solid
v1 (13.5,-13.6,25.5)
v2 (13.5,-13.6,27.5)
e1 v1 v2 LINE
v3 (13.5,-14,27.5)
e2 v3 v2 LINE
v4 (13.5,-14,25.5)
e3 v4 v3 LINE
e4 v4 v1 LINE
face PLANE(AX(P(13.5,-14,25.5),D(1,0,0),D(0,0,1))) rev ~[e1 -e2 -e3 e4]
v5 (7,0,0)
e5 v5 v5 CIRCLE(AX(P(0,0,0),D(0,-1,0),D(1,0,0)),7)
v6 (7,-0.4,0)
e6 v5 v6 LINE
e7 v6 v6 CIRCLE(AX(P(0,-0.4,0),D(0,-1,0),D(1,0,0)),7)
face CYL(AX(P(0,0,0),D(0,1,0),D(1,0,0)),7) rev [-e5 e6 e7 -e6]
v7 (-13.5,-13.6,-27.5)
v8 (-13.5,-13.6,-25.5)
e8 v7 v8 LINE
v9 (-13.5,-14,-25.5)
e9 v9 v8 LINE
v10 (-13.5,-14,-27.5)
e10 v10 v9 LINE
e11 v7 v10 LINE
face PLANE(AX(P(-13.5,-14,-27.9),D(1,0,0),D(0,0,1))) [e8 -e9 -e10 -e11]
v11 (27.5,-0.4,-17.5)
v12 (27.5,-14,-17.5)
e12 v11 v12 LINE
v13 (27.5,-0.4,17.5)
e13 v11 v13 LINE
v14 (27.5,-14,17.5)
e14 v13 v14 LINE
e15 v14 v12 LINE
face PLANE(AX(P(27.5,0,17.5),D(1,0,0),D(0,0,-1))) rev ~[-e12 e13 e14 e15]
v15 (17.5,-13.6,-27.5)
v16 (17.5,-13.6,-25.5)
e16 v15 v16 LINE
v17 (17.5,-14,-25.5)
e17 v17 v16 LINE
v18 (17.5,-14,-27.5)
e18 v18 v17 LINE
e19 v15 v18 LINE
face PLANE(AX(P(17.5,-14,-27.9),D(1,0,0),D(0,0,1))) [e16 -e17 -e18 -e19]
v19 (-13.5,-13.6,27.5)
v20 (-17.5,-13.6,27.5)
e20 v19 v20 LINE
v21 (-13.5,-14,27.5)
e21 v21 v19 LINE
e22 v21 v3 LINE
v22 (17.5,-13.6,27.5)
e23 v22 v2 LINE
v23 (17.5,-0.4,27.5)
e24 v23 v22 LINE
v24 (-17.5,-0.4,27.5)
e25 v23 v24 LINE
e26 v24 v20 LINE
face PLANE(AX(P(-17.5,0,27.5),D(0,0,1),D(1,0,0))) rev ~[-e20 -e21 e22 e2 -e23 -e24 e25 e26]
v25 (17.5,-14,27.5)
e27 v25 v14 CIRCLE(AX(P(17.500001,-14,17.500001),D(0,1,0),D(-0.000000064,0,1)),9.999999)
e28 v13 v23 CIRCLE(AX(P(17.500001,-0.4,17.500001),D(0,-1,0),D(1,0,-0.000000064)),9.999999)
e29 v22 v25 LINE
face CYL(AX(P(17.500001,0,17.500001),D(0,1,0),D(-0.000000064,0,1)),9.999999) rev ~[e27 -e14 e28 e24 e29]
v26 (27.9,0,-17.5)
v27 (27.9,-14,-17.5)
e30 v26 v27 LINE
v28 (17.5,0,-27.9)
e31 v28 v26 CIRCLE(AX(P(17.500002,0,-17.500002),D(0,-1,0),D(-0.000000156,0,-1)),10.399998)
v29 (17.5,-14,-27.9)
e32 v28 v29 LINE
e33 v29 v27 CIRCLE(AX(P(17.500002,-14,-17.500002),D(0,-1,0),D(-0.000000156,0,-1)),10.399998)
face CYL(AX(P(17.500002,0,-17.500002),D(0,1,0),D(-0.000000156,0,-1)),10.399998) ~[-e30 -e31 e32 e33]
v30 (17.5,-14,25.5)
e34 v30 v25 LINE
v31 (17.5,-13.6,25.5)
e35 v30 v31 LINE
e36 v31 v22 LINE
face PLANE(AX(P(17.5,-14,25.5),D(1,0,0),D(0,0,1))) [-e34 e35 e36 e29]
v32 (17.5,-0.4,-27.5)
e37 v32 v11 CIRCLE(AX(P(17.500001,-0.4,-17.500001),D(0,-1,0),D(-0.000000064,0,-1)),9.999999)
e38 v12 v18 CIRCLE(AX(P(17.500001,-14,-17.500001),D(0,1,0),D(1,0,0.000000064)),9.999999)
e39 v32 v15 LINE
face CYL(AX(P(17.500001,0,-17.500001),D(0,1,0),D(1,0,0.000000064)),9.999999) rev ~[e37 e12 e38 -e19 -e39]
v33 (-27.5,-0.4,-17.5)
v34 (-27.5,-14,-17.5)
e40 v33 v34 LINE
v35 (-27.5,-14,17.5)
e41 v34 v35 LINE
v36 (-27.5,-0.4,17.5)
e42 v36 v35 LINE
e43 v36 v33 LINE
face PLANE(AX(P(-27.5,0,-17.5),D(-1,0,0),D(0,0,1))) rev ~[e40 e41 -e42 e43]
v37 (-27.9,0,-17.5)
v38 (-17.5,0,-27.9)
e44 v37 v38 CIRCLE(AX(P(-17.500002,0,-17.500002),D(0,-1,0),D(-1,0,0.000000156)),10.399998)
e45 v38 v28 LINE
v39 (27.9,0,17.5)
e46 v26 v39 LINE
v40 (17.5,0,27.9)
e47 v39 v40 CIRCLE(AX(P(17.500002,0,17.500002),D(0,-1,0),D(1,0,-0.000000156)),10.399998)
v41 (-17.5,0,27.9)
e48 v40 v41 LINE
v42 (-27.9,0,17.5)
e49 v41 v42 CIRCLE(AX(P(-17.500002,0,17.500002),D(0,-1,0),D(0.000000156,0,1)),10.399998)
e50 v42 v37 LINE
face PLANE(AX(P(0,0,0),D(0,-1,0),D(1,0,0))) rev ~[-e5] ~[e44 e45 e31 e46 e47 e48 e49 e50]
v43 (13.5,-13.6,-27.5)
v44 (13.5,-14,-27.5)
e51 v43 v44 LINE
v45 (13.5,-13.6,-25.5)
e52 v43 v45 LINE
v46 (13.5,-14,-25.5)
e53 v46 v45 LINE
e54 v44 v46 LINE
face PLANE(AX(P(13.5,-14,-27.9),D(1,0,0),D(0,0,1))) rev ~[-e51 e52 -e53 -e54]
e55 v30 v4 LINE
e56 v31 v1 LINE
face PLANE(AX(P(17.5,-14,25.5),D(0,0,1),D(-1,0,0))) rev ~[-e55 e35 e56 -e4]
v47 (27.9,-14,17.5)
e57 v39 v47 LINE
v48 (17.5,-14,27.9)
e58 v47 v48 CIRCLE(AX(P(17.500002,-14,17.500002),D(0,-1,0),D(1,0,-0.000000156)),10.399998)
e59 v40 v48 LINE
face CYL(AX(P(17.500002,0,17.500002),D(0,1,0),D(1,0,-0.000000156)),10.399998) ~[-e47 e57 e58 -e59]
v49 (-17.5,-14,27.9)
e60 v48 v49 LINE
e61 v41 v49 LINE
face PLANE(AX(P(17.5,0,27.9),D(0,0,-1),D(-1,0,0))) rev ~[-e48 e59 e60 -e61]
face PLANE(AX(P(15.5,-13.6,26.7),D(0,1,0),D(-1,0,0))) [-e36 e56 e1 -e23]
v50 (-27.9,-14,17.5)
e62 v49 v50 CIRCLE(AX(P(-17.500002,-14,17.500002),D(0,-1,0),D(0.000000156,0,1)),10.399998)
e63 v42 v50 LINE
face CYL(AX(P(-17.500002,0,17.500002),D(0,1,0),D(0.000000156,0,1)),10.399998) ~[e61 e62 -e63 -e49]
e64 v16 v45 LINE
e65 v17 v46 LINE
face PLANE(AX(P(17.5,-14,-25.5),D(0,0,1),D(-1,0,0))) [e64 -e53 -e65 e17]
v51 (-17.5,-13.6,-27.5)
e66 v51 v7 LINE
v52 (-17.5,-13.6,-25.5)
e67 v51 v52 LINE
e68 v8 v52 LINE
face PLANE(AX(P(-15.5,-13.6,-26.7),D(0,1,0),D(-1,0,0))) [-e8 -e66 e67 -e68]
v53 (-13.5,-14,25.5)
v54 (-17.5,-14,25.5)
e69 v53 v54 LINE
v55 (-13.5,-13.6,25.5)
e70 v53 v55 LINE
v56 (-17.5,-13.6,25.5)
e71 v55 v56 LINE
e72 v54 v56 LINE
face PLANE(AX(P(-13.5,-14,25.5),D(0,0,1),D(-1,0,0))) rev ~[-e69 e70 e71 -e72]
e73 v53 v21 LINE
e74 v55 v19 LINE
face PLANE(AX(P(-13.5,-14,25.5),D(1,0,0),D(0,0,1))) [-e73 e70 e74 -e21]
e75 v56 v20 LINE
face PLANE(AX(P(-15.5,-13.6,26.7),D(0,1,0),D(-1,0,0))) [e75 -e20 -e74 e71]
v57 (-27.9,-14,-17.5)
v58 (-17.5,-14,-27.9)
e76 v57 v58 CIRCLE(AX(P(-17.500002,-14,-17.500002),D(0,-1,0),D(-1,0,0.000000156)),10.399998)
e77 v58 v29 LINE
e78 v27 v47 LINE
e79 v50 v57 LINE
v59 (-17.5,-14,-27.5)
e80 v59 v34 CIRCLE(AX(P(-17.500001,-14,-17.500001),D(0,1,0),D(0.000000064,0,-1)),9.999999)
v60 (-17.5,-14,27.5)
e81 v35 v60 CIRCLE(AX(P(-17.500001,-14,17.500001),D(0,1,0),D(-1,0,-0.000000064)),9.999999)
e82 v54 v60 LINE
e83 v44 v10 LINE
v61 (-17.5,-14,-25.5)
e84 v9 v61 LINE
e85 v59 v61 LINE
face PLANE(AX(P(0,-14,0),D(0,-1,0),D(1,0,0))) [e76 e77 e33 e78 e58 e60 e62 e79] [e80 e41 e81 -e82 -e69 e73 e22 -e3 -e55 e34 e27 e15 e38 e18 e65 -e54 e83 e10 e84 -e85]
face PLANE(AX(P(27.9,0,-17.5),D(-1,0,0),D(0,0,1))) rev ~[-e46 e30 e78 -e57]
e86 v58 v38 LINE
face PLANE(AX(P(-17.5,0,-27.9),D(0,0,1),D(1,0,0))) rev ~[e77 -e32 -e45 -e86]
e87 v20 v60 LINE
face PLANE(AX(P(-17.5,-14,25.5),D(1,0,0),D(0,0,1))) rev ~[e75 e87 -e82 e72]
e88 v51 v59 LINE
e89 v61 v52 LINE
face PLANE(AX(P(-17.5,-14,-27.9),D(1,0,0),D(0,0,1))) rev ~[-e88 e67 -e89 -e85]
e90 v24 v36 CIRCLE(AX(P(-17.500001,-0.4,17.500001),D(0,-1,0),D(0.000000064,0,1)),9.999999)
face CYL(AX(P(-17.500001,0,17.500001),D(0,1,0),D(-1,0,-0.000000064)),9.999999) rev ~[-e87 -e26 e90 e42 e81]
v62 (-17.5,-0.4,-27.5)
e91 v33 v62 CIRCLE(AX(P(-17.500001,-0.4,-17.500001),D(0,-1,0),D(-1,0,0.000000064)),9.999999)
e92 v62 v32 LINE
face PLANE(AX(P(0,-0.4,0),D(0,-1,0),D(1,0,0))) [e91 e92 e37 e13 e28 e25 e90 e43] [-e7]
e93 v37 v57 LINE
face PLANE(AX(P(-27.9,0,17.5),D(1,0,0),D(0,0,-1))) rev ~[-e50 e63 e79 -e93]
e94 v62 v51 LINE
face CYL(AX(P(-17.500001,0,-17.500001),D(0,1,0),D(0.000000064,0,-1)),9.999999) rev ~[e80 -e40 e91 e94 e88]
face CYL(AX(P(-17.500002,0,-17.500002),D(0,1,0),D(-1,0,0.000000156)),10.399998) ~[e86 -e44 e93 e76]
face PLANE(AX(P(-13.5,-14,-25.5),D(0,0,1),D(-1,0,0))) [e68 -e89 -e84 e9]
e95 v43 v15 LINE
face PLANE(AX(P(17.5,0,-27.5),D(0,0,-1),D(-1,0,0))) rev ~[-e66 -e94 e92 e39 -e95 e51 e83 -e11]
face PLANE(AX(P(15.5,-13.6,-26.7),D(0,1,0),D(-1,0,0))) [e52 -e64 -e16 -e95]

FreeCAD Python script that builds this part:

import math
import FreeCAD as App
import Part
import Sketcher
from FreeCAD import Vector
Q = App.Units.Quantity


def add_polygon(sketch, points):
    """Adds a closed chain of lines whose ends are joined by coincident constraints."""
    first, n = sketch.GeometryCount, len(points)
    for a, b in zip(points, points[1:] + points[:1]):
        sketch.addGeometry(Part.LineSegment(App.Vector(*a, 0), App.Vector(*b, 0)), False)
    for i in range(n):
        sketch.addConstraint(Sketcher.Constraint("Coincident", first + i, 2, first + (i + 1) % n, 1))

doc = App.newDocument("Part")
body = doc.addObject("PartDesign::Body", "Body")

# Sketch on XZ plane
sketch1 = body.newObject("Sketcher::SketchObject", "Sketch")
sketch1.AttachmentSupport = (doc.getObject("XZ_Plane"), [""])
sketch1.MapMode = "FlatFace"
sketch1.addGeometry(Part.LineSegment(Vector(-18, -28, 0), Vector(18, -28, 0)), False)
sketch1.addGeometry(Part.ArcOfCircle(Part.Circle(Vector(18, -18, 0), Vector(0, 0, 1), 10), math.radians(-90), math.radians(0)), False)
sketch1.addGeometry(Part.LineSegment(Vector(28, -18, 0), Vector(28, 18, 0)), False)
sketch1.addGeometry(Part.ArcOfCircle(Part.Circle(Vector(18, 18, 0), Vector(0, 0, 1), 10), math.radians(0), math.radians(90)), False)
sketch1.addGeometry(Part.LineSegment(Vector(18, 28, 0), Vector(-18, 28, 0)), False)
sketch1.addGeometry(Part.ArcOfCircle(Part.Circle(Vector(-18, 18, 0), Vector(0, 0, 1), 10), math.radians(90), math.radians(180)), False)
sketch1.addGeometry(Part.LineSegment(Vector(-28, 18, 0), Vector(-28, -18, 0)), False)
sketch1.addGeometry(Part.ArcOfCircle(Part.Circle(Vector(-18, -18, 0), Vector(0, 0, 1), 10), math.radians(180), math.radians(270)), False)
sketch1.addGeometry(Part.Circle(Vector(0, 0, 0), Vector(0, 0, 1), 7), False)
sketch1.addConstraint(Sketcher.Constraint("Tangent", 0, 2, 1, 1))
sketch1.addConstraint(Sketcher.Constraint("Tangent", 1, 2, 2, 1))
sketch1.addConstraint(Sketcher.Constraint("Tangent", 2, 2, 3, 1))
sketch1.addConstraint(Sketcher.Constraint("Tangent", 3, 2, 4, 1))
sketch1.addConstraint(Sketcher.Constraint("Tangent", 4, 2, 5, 1))
sketch1.addConstraint(Sketcher.Constraint("Tangent", 5, 2, 6, 1))
sketch1.addConstraint(Sketcher.Constraint("Tangent", 6, 2, 7, 1))
sketch1.addConstraint(Sketcher.Constraint("Tangent", 7, 2, 0, 1))
sketch1.addConstraint(Sketcher.Constraint("Horizontal", 0))
sketch1.addConstraint(Sketcher.Constraint("Vertical", 2))
sketch1.addConstraint(Sketcher.Constraint("Horizontal", 4))
sketch1.addConstraint(Sketcher.Constraint("Vertical", 6))
sketch1.addConstraint(Sketcher.Constraint("Coincident", 8, 3, -1, 1))
sketch1.addConstraint(Sketcher.Constraint("Equal", 1, 3))
sketch1.addConstraint(Sketcher.Constraint("Equal", 3, 5))
sketch1.addConstraint(Sketcher.Constraint("Equal", 5, 7))
sketch1.addConstraint(Sketcher.Constraint("Symmetric", 1, 3, 5, 3, -1, 1))
sketch1.addConstraint(Sketcher.Constraint("Equal", 4, 2))
sketch1.addConstraint(Sketcher.Constraint("Diameter", 8, Q("14 mm")))
sketch1.addConstraint(Sketcher.Constraint("Radius", 1, Q("9.999999 mm")))
sketch1.addConstraint(Sketcher.Constraint("DistanceX", 0, 1, 0, 2, Q("35 mm")))
pad1 = body.newObject("PartDesign::Pad", "Pad")
pad1.Profile = sketch1
pad1.Length = 0.4

# Sketch on XZ plane
sketch2 = body.newObject("Sketcher::SketchObject", "Sketch001")
sketch2.AttachmentSupport = (doc.getObject("XZ_Plane"), [""])
sketch2.MapMode = "FlatFace"
sketch2.addGeometry(Part.ArcOfCircle(Part.Circle(Vector(18, 18, 0), Vector(0, 0, 1), 10), math.radians(0), math.radians(90)), False)
sketch2.addGeometry(Part.LineSegment(Vector(18, 28, 0), Vector(-18, 28, 0)), False)
sketch2.addGeometry(Part.ArcOfCircle(Part.Circle(Vector(-18, 18, 0), Vector(0, 0, 1), 10), math.radians(90), math.radians(180)), False)
sketch2.addGeometry(Part.LineSegment(Vector(-28, 18, 0), Vector(-28, -18, 0)), False)
sketch2.addGeometry(Part.ArcOfCircle(Part.Circle(Vector(-18, -18, 0), Vector(0, 0, 1), 10), math.radians(180), math.radians(270)), False)
sketch2.addGeometry(Part.LineSegment(Vector(-18, -28, 0), Vector(18, -28, 0)), False)
sketch2.addGeometry(Part.ArcOfCircle(Part.Circle(Vector(18, -18, 0), Vector(0, 0, 1), 10), math.radians(-90), math.radians(0)), False)
sketch2.addGeometry(Part.LineSegment(Vector(28, -18, 0), Vector(28, 18, 0)), False)
sketch2.addGeometry(Part.LineSegment(Vector(28, 18, 0), Vector(28, -18, 0)), False)
sketch2.addGeometry(Part.ArcOfCircle(Part.Circle(Vector(18, -18, 0), Vector(0, 0, 1), 10), math.radians(-90), math.radians(0)), False)
sketch2.addGeometry(Part.LineSegment(Vector(18, -28, 0), Vector(-18, -28, 0)), False)
sketch2.addGeometry(Part.ArcOfCircle(Part.Circle(Vector(-18, -18, 0), Vector(0, 0, 1), 10), math.radians(180), math.radians(270)), False)
sketch2.addGeometry(Part.LineSegment(Vector(-28, -18, 0), Vector(-28, 18, 0)), False)
sketch2.addGeometry(Part.ArcOfCircle(Part.Circle(Vector(-18, 18, 0), Vector(0, 0, 1), 10), math.radians(90), math.radians(180)), False)
sketch2.addGeometry(Part.LineSegment(Vector(-18, 28, 0), Vector(18, 28, 0)), False)
sketch2.addGeometry(Part.ArcOfCircle(Part.Circle(Vector(18, 18, 0), Vector(0, 0, 1), 10), math.radians(0), math.radians(90)), False)
sketch2.addConstraint(Sketcher.Constraint("Tangent", 0, 2, 1, 1))
sketch2.addConstraint(Sketcher.Constraint("Tangent", 1, 2, 2, 1))
sketch2.addConstraint(Sketcher.Constraint("Tangent", 2, 2, 3, 1))
sketch2.addConstraint(Sketcher.Constraint("Tangent", 3, 2, 4, 1))
sketch2.addConstraint(Sketcher.Constraint("Tangent", 4, 2, 5, 1))
sketch2.addConstraint(Sketcher.Constraint("Tangent", 5, 2, 6, 1))
sketch2.addConstraint(Sketcher.Constraint("Tangent", 6, 2, 7, 1))
sketch2.addConstraint(Sketcher.Constraint("Tangent", 7, 2, 0, 1))
sketch2.addConstraint(Sketcher.Constraint("Tangent", 8, 2, 9, 2))
sketch2.addConstraint(Sketcher.Constraint("Tangent", 9, 1, 10, 1))
sketch2.addConstraint(Sketcher.Constraint("Tangent", 10, 2, 11, 2))
sketch2.addConstraint(Sketcher.Constraint("Tangent", 11, 1, 12, 1))
sketch2.addConstraint(Sketcher.Constraint("Tangent", 12, 2, 13, 2))
sketch2.addConstraint(Sketcher.Constraint("Tangent", 13, 1, 14, 1))
sketch2.addConstraint(Sketcher.Constraint("Tangent", 14, 2, 15, 2))
sketch2.addConstraint(Sketcher.Constraint("Tangent", 15, 1, 8, 1))
sketch2.addConstraint(Sketcher.Constraint("Horizontal", 1))
sketch2.addConstraint(Sketcher.Constraint("Vertical", 3))
sketch2.addConstraint(Sketcher.Constraint("Horizontal", 5))
sketch2.addConstraint(Sketcher.Constraint("Vertical", 7))
sketch2.addConstraint(Sketcher.Constraint("Vertical", 8))
sketch2.addConstraint(Sketcher.Constraint("Horizontal", 10))
sketch2.addConstraint(Sketcher.Constraint("Vertical", 12))
sketch2.addConstraint(Sketcher.Constraint("Horizontal", 14))
sketch2.addConstraint(Sketcher.Constraint("Coincident", 9, 3, 6, 3))
sketch2.addConstraint(Sketcher.Constraint("Coincident", 11, 3, 4, 3))
sketch2.addConstraint(Sketcher.Constraint("Coincident", 13, 3, 2, 3))
sketch2.addConstraint(Sketcher.Constraint("Equal", 0, 2))
sketch2.addConstraint(Sketcher.Constraint("Equal", 2, 4))
sketch2.addConstraint(Sketcher.Constraint("Equal", 4, 6))
sketch2.addConstraint(Sketcher.Constraint("Equal", 13, 15))
sketch2.addConstraint(Sketcher.Constraint("Symmetric", 0, 3, 4, 3, -1, 1))
sketch2.addConstraint(Sketcher.Constraint("Equal", 14, 3))
sketch2.addConstraint(Sketcher.Constraint("Radius", 9, Q("9.999999 mm")))
sketch2.addConstraint(Sketcher.Constraint("Radius", 0, Q("10.399998 mm")))
sketch2.addConstraint(Sketcher.Constraint("DistanceX", 1, 2, 1, 1, Q("35 mm")))
pad2 = body.newObject("PartDesign::Pad", "Pad001")
pad2.Profile = sketch2
pad2.Length = 14

# Sketch on XZ plane
sketch3 = body.newObject("Sketcher::SketchObject", "Sketch002")
sketch3.AttachmentSupport = (doc.getObject("XZ_Plane"), [""])
sketch3.MapMode = "FlatFace"
sketch3.AttachmentOffset = App.Placement(Vector(0, 0, 14), App.Rotation())
add_polygon(sketch3, [(17.5, -25.5), (17.5, -27.9), (13.5, -27.9), (13.5, -25.5)])  # lines 0-3
add_polygon(sketch3, [(-13.5, -25.5), (-13.5, -27.9), (-17.5, -27.9), (-17.5, -25.5)])  # lines 4-7
add_polygon(sketch3, [(-13.5, 27.9), (-13.5, 25.5), (-17.5, 25.5), (-17.5, 27.9)])  # lines 8-11
add_polygon(sketch3, [(17.5, 27.9), (17.5, 25.5), (13.5, 25.5), (13.5, 27.9)])  # lines 12-15
sketch3.addConstraint(Sketcher.Constraint("Vertical", 0))
sketch3.addConstraint(Sketcher.Constraint("Horizontal", 1))
sketch3.addConstraint(Sketcher.Constraint("Vertical", 2))
sketch3.addConstraint(Sketcher.Constraint("Horizontal", 3))
sketch3.addConstraint(Sketcher.Constraint("Vertical", 4))
sketch3.addConstraint(Sketcher.Constraint("Horizontal", 5))
sketch3.addConstraint(Sketcher.Constraint("Vertical", 6))
sketch3.addConstraint(Sketcher.Constraint("Horizontal", 7))
sketch3.addConstraint(Sketcher.Constraint("Vertical", 8))
sketch3.addConstraint(Sketcher.Constraint("Horizontal", 9))
sketch3.addConstraint(Sketcher.Constraint("Vertical", 10))
sketch3.addConstraint(Sketcher.Constraint("Horizontal", 11))
sketch3.addConstraint(Sketcher.Constraint("Vertical", 12))
sketch3.addConstraint(Sketcher.Constraint("Horizontal", 13))
sketch3.addConstraint(Sketcher.Constraint("Vertical", 14))
sketch3.addConstraint(Sketcher.Constraint("Horizontal", 15))
sketch3.addConstraint(Sketcher.Constraint("Symmetric", 2, 2, 8, 2, -1, 1))
sketch3.addConstraint(Sketcher.Constraint("Symmetric", 0, 2, 10, 2, -1, 1))
sketch3.addConstraint(Sketcher.Constraint("Symmetric", 6, 2, 12, 2, -1, 1))
sketch3.addConstraint(Sketcher.Constraint("Symmetric", 4, 2, 14, 2, -1, 1))
sketch3.addConstraint(Sketcher.Constraint("Symmetric", 1, 2, 4, 2, -2))
sketch3.addConstraint(Sketcher.Constraint("Symmetric", 3, 2, 6, 2, -2))
sketch3.addConstraint(Sketcher.Constraint("DistanceX", 1, 2, 1, 1, Q("4 mm")))
sketch3.addConstraint(Sketcher.Constraint("DistanceY", 0, 2, 0, 1, Q("2.4 mm")))
sketch3.addConstraint(Sketcher.Constraint("DistanceX", 4, 2, 1, 2, Q("27 mm")))
sketch3.addConstraint(Sketcher.Constraint("DistanceY", 7, 2, 8, 2, Q("51 mm")))
pad3 = body.newObject("PartDesign::Pad", "Pad002")
pad3.Profile = sketch3
pad3.Length = 0.4
pad3.Reversed = True

doc.recompute()
